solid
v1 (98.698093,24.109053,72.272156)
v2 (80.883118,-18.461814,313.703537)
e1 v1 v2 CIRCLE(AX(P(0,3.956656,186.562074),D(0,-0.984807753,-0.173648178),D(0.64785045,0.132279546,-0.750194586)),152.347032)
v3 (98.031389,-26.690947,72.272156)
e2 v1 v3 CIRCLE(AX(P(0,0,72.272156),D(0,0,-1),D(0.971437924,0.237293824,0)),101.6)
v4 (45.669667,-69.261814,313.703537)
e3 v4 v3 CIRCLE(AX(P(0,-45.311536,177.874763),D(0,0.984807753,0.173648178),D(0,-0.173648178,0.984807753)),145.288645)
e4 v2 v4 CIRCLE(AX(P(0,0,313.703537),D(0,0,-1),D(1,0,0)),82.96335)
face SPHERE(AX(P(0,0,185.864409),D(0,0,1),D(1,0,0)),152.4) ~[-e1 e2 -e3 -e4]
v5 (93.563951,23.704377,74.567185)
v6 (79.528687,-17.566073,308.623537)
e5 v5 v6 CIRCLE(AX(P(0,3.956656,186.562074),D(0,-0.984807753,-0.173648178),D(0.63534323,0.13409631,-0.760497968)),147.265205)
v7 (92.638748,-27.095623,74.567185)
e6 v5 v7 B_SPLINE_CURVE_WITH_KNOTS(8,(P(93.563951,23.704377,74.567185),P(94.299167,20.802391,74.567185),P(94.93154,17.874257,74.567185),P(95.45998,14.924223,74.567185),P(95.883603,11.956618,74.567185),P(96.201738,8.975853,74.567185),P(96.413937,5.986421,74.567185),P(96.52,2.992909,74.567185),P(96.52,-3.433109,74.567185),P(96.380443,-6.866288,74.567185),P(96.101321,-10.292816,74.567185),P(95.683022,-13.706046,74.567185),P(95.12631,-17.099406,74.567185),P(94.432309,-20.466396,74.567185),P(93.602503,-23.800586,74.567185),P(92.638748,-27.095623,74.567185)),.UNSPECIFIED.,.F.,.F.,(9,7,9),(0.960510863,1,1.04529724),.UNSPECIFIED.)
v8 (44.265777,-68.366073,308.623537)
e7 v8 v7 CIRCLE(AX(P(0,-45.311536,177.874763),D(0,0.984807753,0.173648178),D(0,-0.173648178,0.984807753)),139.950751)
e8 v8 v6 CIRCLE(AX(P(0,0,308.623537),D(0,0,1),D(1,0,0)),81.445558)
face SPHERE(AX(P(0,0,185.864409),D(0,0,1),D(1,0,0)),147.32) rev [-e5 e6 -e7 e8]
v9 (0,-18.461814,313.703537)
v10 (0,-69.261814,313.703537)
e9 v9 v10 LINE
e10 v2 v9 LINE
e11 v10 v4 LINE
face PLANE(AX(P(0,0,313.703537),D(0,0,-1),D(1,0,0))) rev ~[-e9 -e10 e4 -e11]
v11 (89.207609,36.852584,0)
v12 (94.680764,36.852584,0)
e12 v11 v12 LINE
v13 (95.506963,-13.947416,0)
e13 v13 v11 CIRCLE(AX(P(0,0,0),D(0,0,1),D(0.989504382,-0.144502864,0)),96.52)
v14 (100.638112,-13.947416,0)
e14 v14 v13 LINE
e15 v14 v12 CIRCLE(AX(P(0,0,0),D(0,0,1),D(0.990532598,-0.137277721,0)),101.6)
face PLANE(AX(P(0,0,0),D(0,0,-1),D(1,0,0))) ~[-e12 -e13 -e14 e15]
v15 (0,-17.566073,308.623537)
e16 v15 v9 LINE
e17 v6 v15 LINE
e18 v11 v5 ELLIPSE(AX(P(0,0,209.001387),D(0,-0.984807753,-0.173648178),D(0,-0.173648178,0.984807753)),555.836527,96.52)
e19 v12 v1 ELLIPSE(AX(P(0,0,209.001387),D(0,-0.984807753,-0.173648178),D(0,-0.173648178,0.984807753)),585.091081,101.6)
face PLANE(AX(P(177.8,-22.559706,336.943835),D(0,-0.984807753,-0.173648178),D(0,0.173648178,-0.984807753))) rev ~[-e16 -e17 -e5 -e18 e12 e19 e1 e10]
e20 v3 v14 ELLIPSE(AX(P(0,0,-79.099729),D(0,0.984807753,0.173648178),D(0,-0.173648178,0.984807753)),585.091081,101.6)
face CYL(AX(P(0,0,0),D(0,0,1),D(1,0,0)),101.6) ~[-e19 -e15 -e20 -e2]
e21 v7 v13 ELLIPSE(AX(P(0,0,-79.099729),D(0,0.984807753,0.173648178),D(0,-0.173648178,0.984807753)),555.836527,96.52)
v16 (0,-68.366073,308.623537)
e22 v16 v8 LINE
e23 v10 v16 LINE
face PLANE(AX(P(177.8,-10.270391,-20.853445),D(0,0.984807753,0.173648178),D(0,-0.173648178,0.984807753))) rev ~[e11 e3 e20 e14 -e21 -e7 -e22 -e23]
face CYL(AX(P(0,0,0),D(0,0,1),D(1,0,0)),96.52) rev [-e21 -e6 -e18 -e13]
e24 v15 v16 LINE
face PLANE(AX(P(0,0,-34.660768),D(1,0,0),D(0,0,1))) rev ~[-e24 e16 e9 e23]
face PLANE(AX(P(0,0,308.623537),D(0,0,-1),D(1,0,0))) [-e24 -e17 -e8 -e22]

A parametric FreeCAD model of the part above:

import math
import FreeCAD as App
import Part
import Sketcher

V = App.Vector
Q = App.Units.Quantity


def faces_at(feature, points):
    """Names of the faces that lie closest to the given points."""
    faces = feature.Shape.Faces
    near = lambda p: min(range(len(faces)), key=lambda i: faces[i].distToShape(Part.Vertex(*p))[0])
    return sorted({f"Face{near(p) + 1}" for p in points})

doc = App.newDocument("Part")
body = doc.addObject("PartDesign::Body", "Body")

# Sketch on XZ plane
sketch1 = body.newObject("Sketcher::SketchObject", "Sketch")
sketch1.AttachmentSupport = (doc.getObject("XZ_Plane"), [""])
sketch1.MapMode = "FlatFace"
sketch1.addGeometry([
    Part.LineSegment(V(0, 314, 0), V(0, 0, 0)),  # 0
    Part.LineSegment(V(0, 0, 0), V(102, 0, 0)),  # 1
    Part.LineSegment(V(102, 0, 0), V(102, 72, 0)),  # 2
    Part.ArcOfCircle(Part.Circle(V(0, 186, 0), V(0, 0, 1), 152), math.radians(-48), math.radians(57)),  # 3
    Part.LineSegment(V(83, 314, 0), V(0, 314, 0)),  # 4
], False)
sketch1.addConstraint([
    Sketcher.Constraint("Coincident", 0, 2, 1, 1),
    Sketcher.Constraint("Coincident", 1, 2, 2, 1),
    Sketcher.Constraint("Coincident", 2, 2, 3, 1),
    Sketcher.Constraint("Coincident", 3, 2, 4, 1),
    Sketcher.Constraint("Coincident", 4, 2, 0, 1),
    Sketcher.Constraint("Vertical", 0),
    Sketcher.Constraint("Horizontal", 1),
    Sketcher.Constraint("Vertical", 2),
    Sketcher.Constraint("Horizontal", 4),
    Sketcher.Constraint("Coincident", 0, 2, -1, 1),
    Sketcher.Constraint("PointOnObject", 3, 3, -2),
    Sketcher.Constraint("Radius", 3, Q("6 in")),
    Sketcher.Constraint("DistanceX", 1, 1, 1, 2, Q("4 in")),
    Sketcher.Constraint("DistanceX", 4, 2, 4, 1, Q("82.96335 mm")),
    Sketcher.Constraint("DistanceY", 0, 2, 0, 1, Q("313.703537 mm")),
])
revolution = body.newObject("PartDesign::Revolution", "Revolution")
revolution.Profile = sketch1
revolution.ReferenceAxis = (sketch1, ["V_Axis"])
revolution.Angle = 360
doc.recompute()

thickness = body.newObject("PartDesign::Thickness", "Thickness")
thickness.Base = (revolution, faces_at(revolution, [(0, 0, 0)]))
thickness.Value = Q("0.2 in")
thickness.Reversed = True
thickness.Join = "Intersection"

# Sketch on YZ plane
sketch2 = body.newObject("Sketcher::SketchObject", "Sketch001")
sketch2.AttachmentSupport = (doc.getObject("YZ_Plane"), [""])
sketch2.MapMode = "FlatFace"
sketch2.AttachmentOffset = App.Placement(V(0, 0, 7 * 25.4), App.Rotation())
sketch2.addGeometry([
    Part.LineSegment(V(-168, -21, 0), V(-40, -21, 0)),  # 0
    Part.LineSegment(V(-40, -21, 0), V(-23, -50, 0)),  # 1
    Part.LineSegment(V(-23, -50, 0), V(48, -50, 0)),  # 2
    Part.LineSegment(V(48, -50, 0), V(63, -21, 0)),  # 3
    Part.LineSegment(V(63, -21, 0), V(176, -21, 0)),  # 4
    Part.LineSegment(V(176, -21, 0), V(176, 337, 0)),  # 5
    Part.LineSegment(V(176, 337, 0), V(0, 337, 0)),  # 6
    Part.LineSegment(V(0, 337, 0), V(-10, 382, 0)),  # 7
    Part.LineSegment(V(-10, 382, 0), V(-100, 382, 0)),  # 8
    Part.LineSegment(V(-100, 382, 0), V(-107, 337, 0)),  # 9
    Part.LineSegment(V(-107, 337, 0), V(-168, 337, 0)),  # 10
    Part.LineSegment(V(-168, 337, 0), V(-168, -21, 0)),  # 11
    Part.LineSegment(V(41, -21, 0), V(-10, -21, 0)),  # 12
    Part.LineSegment(V(-10, -21, 0), V(-73, 337, 0)),  # 13
    Part.LineSegment(V(-73, 337, 0), V(-23, 337, 0)),  # 14
    Part.LineSegment(V(-23, 337, 0), V(41, -21, 0)),  # 15
], False)
sketch2.addConstraint([
    Sketcher.Constraint("Coincident", 0, 2, 1, 1),
    Sketcher.Constraint("Coincident", 1, 2, 2, 1),
    Sketcher.Constraint("Coincident", 2, 2, 3, 1),
    Sketcher.Constraint("Coincident", 3, 2, 4, 1),
    Sketcher.Constraint("Coincident", 4, 2, 5, 1),
    Sketcher.Constraint("Coincident", 5, 2, 6, 1),
    Sketcher.Constraint("Coincident", 6, 2, 7, 1),
    Sketcher.Constraint("Coincident", 7, 2, 8, 1),
    Sketcher.Constraint("Coincident", 8, 2, 9, 1),
    Sketcher.Constraint("Coincident", 9, 2, 10, 1),
    Sketcher.Constraint("Coincident", 10, 2, 11, 1),
    Sketcher.Constraint("Coincident", 11, 2, 0, 1),
    Sketcher.Constraint("Coincident", 12, 2, 13, 1),
    Sketcher.Constraint("Coincident", 13, 2, 14, 1),
    Sketcher.Constraint("Coincident", 14, 2, 15, 1),
    Sketcher.Constraint("Coincident", 15, 2, 12, 1),
    Sketcher.Constraint("Horizontal", 0),
    Sketcher.Constraint("Horizontal", 2),
    Sketcher.Constraint("Horizontal", 4),
    Sketcher.Constraint("Vertical", 5),
    Sketcher.Constraint("Horizontal", 6),
    Sketcher.Constraint("Horizontal", 8),
    Sketcher.Constraint("Horizontal", 10),
    Sketcher.Constraint("Vertical", 11),
    Sketcher.Constraint("Horizontal", 12),
    Sketcher.Constraint("Horizontal", 14),
    Sketcher.Constraint("PointOnObject", 6, 2, -2),
    Sketcher.Constraint("Parallel", 13, 15),
    Sketcher.Constraint("Horizontal", 0, 2, 3, 2),
    Sketcher.Constraint("Horizontal", 6, 2, 9, 2),
    Sketcher.Constraint("Horizontal", 11, 2, 12, 2),
    Sketcher.Constraint("Horizontal", 10, 2, 13, 2),
    Sketcher.Constraint("Vertical", 7, 2, 12, 2),
    Sketcher.Constraint("Vertical", 1, 2, 14, 2),
    Sketcher.Constraint("DistanceX", 12, 2, 12, 1, Q("2 in")),
    Sketcher.Constraint("Angle", 13, Q("100 deg")),
    Sketcher.Constraint("DistanceY", 6, 2, 7, 2, Q("1.7572998 in")),
    Sketcher.Constraint("DistanceX", 0, 1, 0, 2, Q("128.216282 mm")),
    Sketcher.Constraint("DistanceX", 4, 1, 4, 2, Q("113.235891 mm")),
    Sketcher.Constraint("DistanceX", 6, 2, 6, 1, Q("175.842479 mm")),
    Sketcher.Constraint("DistanceX", 8, 2, 8, 1, Q("90.160909 mm")),
    Sketcher.Constraint("DistanceX", 10, 2, 10, 1, Q("60.807161 mm")),
    Sketcher.Constraint("DistanceY", 5, 1, 5, 2, Q("357.79728 mm")),
    Sketcher.Constraint("DistanceX", 8, 2, -1, 1, Q("100.431301 mm")),
    Sketcher.Constraint("DistanceX", 2, 2, 3, 2, Q("14.147598 mm")),
    Sketcher.Constraint("DistanceX", 9, 2, 8, 2, Q("7.055402 mm")),
    Sketcher.Constraint("Distance", 1, Q("33.630061 mm")),
    Sketcher.Constraint("DistanceY", -1, 1, 7, 2, Q("381.57925 mm")),
])
pocket1 = body.newObject("PartDesign::Pocket", "Pocket")
pocket1.Profile = sketch2
pocket1.Length = Q("15 in")

# Sketch on XZ plane
sketch3 = body.newObject("Sketcher::SketchObject", "Sketch002")
sketch3.AttachmentSupport = (doc.getObject("XZ_Plane"), [""])
sketch3.MapMode = "FlatFace"
sketch3.addGeometry([
    Part.LineSegment(V(-184, 340, 0), V(-184, -35, 0)),
    Part.LineSegment(V(-184, -35, 0), V(0, -35, 0)),
    Part.LineSegment(V(0, -35, 0), V(0, 340, 0)),
    Part.LineSegment(V(0, 340, 0), V(-184, 340, 0)),
], False)
sketch3.addConstraint([
    Sketcher.Constraint("Coincident", 0, 2, 1, 1),
    Sketcher.Constraint("Coincident", 1, 2, 2, 1),
    Sketcher.Constraint("Coincident", 2, 2, 3, 1),
    Sketcher.Constraint("Coincident", 3, 2, 0, 1),
    Sketcher.Constraint("Vertical", 0),
    Sketcher.Constraint("Horizontal", 1),
    Sketcher.Constraint("Vertical", 2),
    Sketcher.Constraint("Horizontal", 3),
    Sketcher.Constraint("PointOnObject", 1, 2, -2),
    Sketcher.Constraint("DistanceY", 0, 2, 0, 1, Q("14.7519998 in")),
    Sketcher.Constraint("DistanceX", 1, 1, 1, 2, Q("183.975533 mm")),
    Sketcher.Constraint("DistanceY", -1, 1, 2, 2, Q("340.040028 mm")),
])
pocket2 = body.newObject("PartDesign::Pocket", "Pocket001")
pocket2.Profile = sketch3
pocket2.Length = Q("10 in")
pocket2.Midplane = True

doc.recompute()
